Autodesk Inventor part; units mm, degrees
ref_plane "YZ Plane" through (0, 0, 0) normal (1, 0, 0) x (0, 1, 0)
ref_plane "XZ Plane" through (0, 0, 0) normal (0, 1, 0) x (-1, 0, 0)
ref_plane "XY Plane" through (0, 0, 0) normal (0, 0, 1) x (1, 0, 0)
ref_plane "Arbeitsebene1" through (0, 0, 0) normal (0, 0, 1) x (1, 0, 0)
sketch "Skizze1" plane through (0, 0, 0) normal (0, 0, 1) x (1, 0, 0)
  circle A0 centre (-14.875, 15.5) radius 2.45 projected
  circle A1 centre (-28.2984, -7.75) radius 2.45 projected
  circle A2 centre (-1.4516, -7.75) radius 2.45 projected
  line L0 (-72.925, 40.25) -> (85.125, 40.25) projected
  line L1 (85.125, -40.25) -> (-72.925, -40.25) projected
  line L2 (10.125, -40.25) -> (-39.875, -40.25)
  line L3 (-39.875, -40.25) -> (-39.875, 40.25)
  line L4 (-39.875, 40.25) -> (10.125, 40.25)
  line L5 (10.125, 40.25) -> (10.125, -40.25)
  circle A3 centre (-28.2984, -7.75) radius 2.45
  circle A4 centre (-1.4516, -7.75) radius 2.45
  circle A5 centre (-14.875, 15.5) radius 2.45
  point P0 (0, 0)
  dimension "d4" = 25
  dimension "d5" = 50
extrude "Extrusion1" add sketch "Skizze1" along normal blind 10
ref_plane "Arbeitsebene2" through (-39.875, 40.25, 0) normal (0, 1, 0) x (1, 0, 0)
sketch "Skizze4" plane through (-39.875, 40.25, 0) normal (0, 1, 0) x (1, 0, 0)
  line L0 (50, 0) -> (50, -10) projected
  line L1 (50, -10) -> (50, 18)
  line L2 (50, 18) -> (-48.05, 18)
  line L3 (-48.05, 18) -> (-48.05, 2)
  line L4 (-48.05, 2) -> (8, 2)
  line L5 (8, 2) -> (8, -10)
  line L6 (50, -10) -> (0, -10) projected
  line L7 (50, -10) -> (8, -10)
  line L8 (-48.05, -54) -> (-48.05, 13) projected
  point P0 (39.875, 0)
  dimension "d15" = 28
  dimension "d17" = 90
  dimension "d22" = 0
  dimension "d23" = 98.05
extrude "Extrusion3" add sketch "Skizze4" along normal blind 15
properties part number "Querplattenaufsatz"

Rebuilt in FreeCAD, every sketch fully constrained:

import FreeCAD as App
import Part
import Sketcher


def add_polygon(sketch, points):
    """Adds a closed chain of lines whose ends are joined by coincident constraints."""
    first, n = sketch.GeometryCount, len(points)
    for a, b in zip(points, points[1:] + points[:1]):
        sketch.addGeometry(Part.LineSegment(App.Vector(*a, 0), App.Vector(*b, 0)), False)
    for i in range(n):
        sketch.addConstraint(Sketcher.Constraint("Coincident", first + i, 2, first + (i + 1) % n, 1))

doc = App.newDocument("Part")
body = doc.addObject("PartDesign::Body", "Body")

sketch1 = body.newObject("Sketcher::SketchObject", "Sketch")
sketch1.AttachmentSupport = (doc.getObject("XY_Plane"), [""])
sketch1.MapMode = "FlatFace"
add_polygon(sketch1, [(10.1, 40.2), (-39.9, 40.2), (-39.9, -40.2), (10.1, -40.2)])
sketch1.addGeometry(Part.Circle(App.Vector(-28.3, -7.8, 0), App.Vector(0, 0, 1), 2.5), False)
sketch1.addGeometry(Part.Circle(App.Vector(-1.5, -7.8, 0), App.Vector(0, 0, 1), 2.5), False)
sketch1.addGeometry(Part.Circle(App.Vector(-14.9, 15.5, 0), App.Vector(0, 0, 1), 2.5), False)
sketch1.addConstraint(Sketcher.Constraint("Horizontal", 0))
sketch1.addConstraint(Sketcher.Constraint("Vertical", 1))
sketch1.addConstraint(Sketcher.Constraint("Horizontal", 2))
sketch1.addConstraint(Sketcher.Constraint("Vertical", 3))
sketch1.addConstraint(Sketcher.Constraint("Equal", 4, 5))
sketch1.addConstraint(Sketcher.Constraint("Equal", 5, 6))
sketch1.addConstraint(Sketcher.Constraint("Horizontal", 4, 3, 5, 3))
sketch1.addConstraint(Sketcher.Constraint("DistanceX", 0, 2, 0, 1, 50.0))
sketch1.addConstraint(Sketcher.Constraint("DistanceX", 0, 2, 6, 3, 25.0))
sketch1.addConstraint(Sketcher.Constraint("Diameter", 4, 4.9))
sketch1.addConstraint(Sketcher.Constraint("DistanceY", 1, 2, 1, 1, 80.5))
sketch1.addConstraint(Sketcher.Constraint("DistanceY", 4, 3, 0, 2, 48.0))
sketch1.addConstraint(Sketcher.Constraint("DistanceY", -1, 1, 6, 3, 15.5))
sketch1.addConstraint(Sketcher.Constraint("DistanceY", 4, 3, -1, 1, 7.75))
sketch1.addConstraint(Sketcher.Constraint("DistanceX", 6, 3, -1, 1, 14.875))
sketch1.addConstraint(Sketcher.Constraint("DistanceX", 4, 3, -1, 1, 28.2984))
sketch1.addConstraint(Sketcher.Constraint("DistanceX", 5, 3, -1, 1, 1.4516))
pad1 = body.newObject("PartDesign::Pad", "Pad")
pad1.Profile = sketch1
pad1.Length = 10

sketch2 = body.newObject("Sketcher::SketchObject", "Sketch001")
sketch2.AttachmentSupport = (doc.getObject("XZ_Plane"), [""])
sketch2.MapMode = "FlatFace"
sketch2.AttachmentOffset = App.Placement(App.Vector(0, 0, -40.25), App.Rotation())
add_polygon(sketch2, [(10, 10), (10, -18), (-88, -18), (-88, -2), (-32, -2), (-32, 10)])
sketch2.addConstraint(Sketcher.Constraint("Vertical", 0))
sketch2.addConstraint(Sketcher.Constraint("Horizontal", 1))
sketch2.addConstraint(Sketcher.Constraint("Vertical", 2))
sketch2.addConstraint(Sketcher.Constraint("Horizontal", 3))
sketch2.addConstraint(Sketcher.Constraint("Vertical", 4))
sketch2.addConstraint(Sketcher.Constraint("Horizontal", 5))
sketch2.addConstraint(Sketcher.Constraint("DistanceY", 0, 2, 0, 1, 28.0))
sketch2.addConstraint(Sketcher.Constraint("DistanceX", 1, 2, 1, 1, 98.05))
sketch2.addConstraint(Sketcher.Constraint("DistanceX", 5, 1, 5, 2, 42.0))
sketch2.addConstraint(Sketcher.Constraint("DistanceY", 2, 1, 2, 2, 16.0))
sketch2.addConstraint(Sketcher.Constraint("DistanceY", 0, 2, -1, 1, 18.0))
sketch2.addConstraint(Sketcher.Constraint("DistanceX", -1, 1, 0, 2, 10.125))
pad2 = body.newObject("PartDesign::Pad", "Pad001")
pad2.Profile = sketch2
pad2.Length = 15
pad2.Reversed = True

doc.recompute()
